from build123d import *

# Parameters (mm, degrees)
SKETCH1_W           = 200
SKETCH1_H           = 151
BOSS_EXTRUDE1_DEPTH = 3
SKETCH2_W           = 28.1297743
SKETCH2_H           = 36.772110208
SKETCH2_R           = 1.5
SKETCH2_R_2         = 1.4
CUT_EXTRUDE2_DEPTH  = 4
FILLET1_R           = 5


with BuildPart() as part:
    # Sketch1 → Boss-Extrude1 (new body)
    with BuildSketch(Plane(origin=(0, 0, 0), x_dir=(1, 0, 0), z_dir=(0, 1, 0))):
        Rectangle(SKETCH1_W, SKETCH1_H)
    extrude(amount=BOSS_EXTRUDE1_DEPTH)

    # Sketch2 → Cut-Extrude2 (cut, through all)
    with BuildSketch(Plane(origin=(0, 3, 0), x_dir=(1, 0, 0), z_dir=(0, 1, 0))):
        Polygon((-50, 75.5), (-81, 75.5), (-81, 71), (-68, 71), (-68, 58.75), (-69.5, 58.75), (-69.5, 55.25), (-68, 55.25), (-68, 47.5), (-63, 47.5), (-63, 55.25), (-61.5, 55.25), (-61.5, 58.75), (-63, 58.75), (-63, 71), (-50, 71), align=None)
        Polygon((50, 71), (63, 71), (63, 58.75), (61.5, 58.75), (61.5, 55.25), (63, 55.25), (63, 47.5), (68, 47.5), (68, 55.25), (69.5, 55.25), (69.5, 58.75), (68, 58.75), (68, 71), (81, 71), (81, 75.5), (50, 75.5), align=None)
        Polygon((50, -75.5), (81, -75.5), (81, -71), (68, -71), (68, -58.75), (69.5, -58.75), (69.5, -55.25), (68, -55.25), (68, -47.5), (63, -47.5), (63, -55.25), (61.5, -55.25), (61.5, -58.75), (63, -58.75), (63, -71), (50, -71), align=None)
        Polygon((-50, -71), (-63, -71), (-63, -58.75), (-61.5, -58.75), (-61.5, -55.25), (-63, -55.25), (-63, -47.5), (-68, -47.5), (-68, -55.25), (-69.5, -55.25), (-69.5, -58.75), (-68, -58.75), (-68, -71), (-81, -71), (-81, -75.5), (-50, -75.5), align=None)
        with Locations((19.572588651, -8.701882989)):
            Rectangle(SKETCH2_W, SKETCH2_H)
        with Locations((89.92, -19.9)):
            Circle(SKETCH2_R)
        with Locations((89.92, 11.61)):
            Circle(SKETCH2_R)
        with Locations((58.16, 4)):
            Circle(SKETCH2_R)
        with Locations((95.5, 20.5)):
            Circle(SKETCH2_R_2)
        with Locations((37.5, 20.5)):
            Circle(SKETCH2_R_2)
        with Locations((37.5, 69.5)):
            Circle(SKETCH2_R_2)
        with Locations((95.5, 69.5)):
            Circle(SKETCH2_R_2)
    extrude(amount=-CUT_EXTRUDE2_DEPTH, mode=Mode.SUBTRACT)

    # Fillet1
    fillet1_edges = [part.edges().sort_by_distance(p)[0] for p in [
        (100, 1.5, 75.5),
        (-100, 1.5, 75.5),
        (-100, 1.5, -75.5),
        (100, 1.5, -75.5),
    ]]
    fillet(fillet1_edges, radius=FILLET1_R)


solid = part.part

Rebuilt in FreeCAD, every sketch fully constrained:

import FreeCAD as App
import Part
import Sketcher

V = App.Vector


def edges_at(feature, points):
    """Names of the edges that pass closest to the given points."""
    edges = feature.Shape.Edges
    near = lambda p: min(range(len(edges)), key=lambda i: edges[i].distToShape(Part.Vertex(*p))[0])
    return sorted({f"Edge{near(p) + 1}" for p in points})


def add_polygon(sketch, points):
    """Adds a closed chain of lines whose ends are joined by coincident constraints."""
    first, n = sketch.GeometryCount, len(points)
    for a, b in zip(points, points[1:] + points[:1]):
        sketch.addGeometry(Part.LineSegment(App.Vector(*a, 0), App.Vector(*b, 0)), False)
    for i in range(n):
        sketch.addConstraint(Sketcher.Constraint("Coincident", first + i, 2, first + (i + 1) % n, 1))

doc = App.newDocument("Part")
body = doc.addObject("PartDesign::Body", "Body")

# Sketch on XZ plane
sketch1 = body.newObject("Sketcher::SketchObject", "Sketch")
sketch1.AttachmentSupport = (doc.getObject("XZ_Plane"), [""])
sketch1.MapMode = "FlatFace"
add_polygon(sketch1, [(-100, -76), (-100, 76), (100, 76), (100, -76)])  # lines 0-3
sketch1.addConstraint([
    Sketcher.Constraint("Vertical", 0),
    Sketcher.Constraint("Horizontal", 1),
    Sketcher.Constraint("Vertical", 2),
    Sketcher.Constraint("Horizontal", 3),
    Sketcher.Constraint("Symmetric", 0, 2, 2, 2, -1, 1),
    Sketcher.Constraint("DistanceX", 1, 1, 1, 2, 200.0),
    Sketcher.Constraint("DistanceY", 0, 1, 0, 2, 151.0),
])
pad1 = body.newObject("PartDesign::Pad", "Pad")
pad1.Profile = sketch1
pad1.Length = 3
pad1.Reversed = True

# Sketch on XZ plane
sketch2 = body.newObject("Sketcher::SketchObject", "Sketch001")
sketch2.AttachmentSupport = (doc.getObject("XZ_Plane"), [""])
sketch2.MapMode = "FlatFace"
sketch2.AttachmentOffset = App.Placement(V(0, 0, -3), App.Rotation())
add_polygon(sketch2, [(-50, -75.5), (-81, -75.5), (-81, -71), (-68, -71), (-68, -58.8), (-69.5, -58.8), (-69.5, -55.2), (-68, -55.2), (-68, -47.5), (-63, -47.5), (-63, -55.2), (-61.5, -55.2), (-61.5, -58.8), (-63, -58.8), (-63, -71), (-50, -71)])  # lines 0-15
add_polygon(sketch2, [(50, -71), (63, -71), (63, -58.8), (61.5, -58.8), (61.5, -55.2), (63, -55.2), (63, -47.5), (68, -47.5), (68, -55.2), (69.5, -55.2), (69.5, -58.8), (68, -58.8), (68, -71), (81, -71), (81, -75.5), (50, -75.5)])  # lines 16-31
add_polygon(sketch2, [(50, 75.5), (81, 75.5), (81, 71), (68, 71), (68, 58.8), (69.5, 58.8), (69.5, 55.2), (68, 55.2), (68, 47.5), (63, 47.5), (63, 55.2), (61.5, 55.2), (61.5, 58.8), (63, 58.8), (63, 71), (50, 71)])  # lines 32-47
add_polygon(sketch2, [(-50, 71), (-63, 71), (-63, 58.8), (-61.5, 58.8), (-61.5, 55.2), (-63, 55.2), (-63, 47.5), (-68, 47.5), (-68, 55.2), (-69.5, 55.2), (-69.5, 58.8), (-68, 58.8), (-68, 71), (-81, 71), (-81, 75.5), (-50, 75.5)])  # lines 48-63
add_polygon(sketch2, [(5.5, -9.7), (5.5, 27.1), (33.6, 27.1), (33.6, -9.7)])  # lines 64-67
sketch2.addGeometry(Part.Circle(V(89.9, 19.9, 0), V(0, 0, 1), 1.5), False)  # 68
sketch2.addGeometry(Part.Circle(V(89.9, -11.6, 0), V(0, 0, 1), 1.5), False)  # 69
sketch2.addGeometry(Part.Circle(V(58.2, -4, 0), V(0, 0, 1), 1.5), False)  # 70
sketch2.addGeometry(Part.Circle(V(95.5, -20.5, 0), V(0, 0, 1), 1.4), False)  # 71
sketch2.addGeometry(Part.Circle(V(37.5, -20.5, 0), V(0, 0, 1), 1.4), False)  # 72
sketch2.addGeometry(Part.Circle(V(37.5, -69.5, 0), V(0, 0, 1), 1.4), False)  # 73
sketch2.addGeometry(Part.Circle(V(95.5, -69.5, 0), V(0, 0, 1), 1.4), False)  # 74
sketch2.addConstraint([
    Sketcher.Constraint("Horizontal", 0),
    Sketcher.Constraint("Vertical", 1),
    Sketcher.Constraint("Horizontal", 2),
    Sketcher.Constraint("Vertical", 3),
    Sketcher.Constraint("Horizontal", 4),
    Sketcher.Constraint("Vertical", 5),
    Sketcher.Constraint("Horizontal", 6),
    Sketcher.Constraint("Vertical", 7),
    Sketcher.Constraint("Horizontal", 8),
    Sketcher.Constraint("Vertical", 9),
    Sketcher.Constraint("Horizontal", 10),
    Sketcher.Constraint("Vertical", 11),
    Sketcher.Constraint("Horizontal", 12),
    Sketcher.Constraint("Vertical", 13),
    Sketcher.Constraint("Horizontal", 14),
    Sketcher.Constraint("Vertical", 15),
    Sketcher.Constraint("Horizontal", 16),
    Sketcher.Constraint("Vertical", 17),
    Sketcher.Constraint("Horizontal", 18),
    Sketcher.Constraint("Vertical", 19),
    Sketcher.Constraint("Horizontal", 20),
    Sketcher.Constraint("Vertical", 21),
    Sketcher.Constraint("Horizontal", 22),
    Sketcher.Constraint("Vertical", 23),
    Sketcher.Constraint("Horizontal", 24),
    Sketcher.Constraint("Vertical", 25),
    Sketcher.Constraint("Horizontal", 26),
    Sketcher.Constraint("Vertical", 27),
    Sketcher.Constraint("Horizontal", 28),
    Sketcher.Constraint("Vertical", 29),
    Sketcher.Constraint("Horizontal", 30),
    Sketcher.Constraint("Vertical", 31),
    Sketcher.Constraint("Horizontal", 32),
    Sketcher.Constraint("Vertical", 33),
    Sketcher.Constraint("Horizontal", 34),
    Sketcher.Constraint("Vertical", 35),
    Sketcher.Constraint("Horizontal", 36),
    Sketcher.Constraint("Vertical", 37),
    Sketcher.Constraint("Horizontal", 38),
    Sketcher.Constraint("Vertical", 39),
    Sketcher.Constraint("Horizontal", 40),
    Sketcher.Constraint("Vertical", 41),
    Sketcher.Constraint("Horizontal", 42),
    Sketcher.Constraint("Vertical", 43),
    Sketcher.Constraint("Horizontal", 44),
    Sketcher.Constraint("Vertical", 45),
    Sketcher.Constraint("Horizontal", 46),
    Sketcher.Constraint("Vertical", 47),
    Sketcher.Constraint("Horizontal", 48),
    Sketcher.Constraint("Vertical", 49),
    Sketcher.Constraint("Horizontal", 50),
    Sketcher.Constraint("Vertical", 51),
    Sketcher.Constraint("Horizontal", 52),
    Sketcher.Constraint("Vertical", 53),
    Sketcher.Constraint("Horizontal", 54),
    Sketcher.Constraint("Vertical", 55),
    Sketcher.Constraint("Horizontal", 56),
    Sketcher.Constraint("Vertical", 57),
    Sketcher.Constraint("Horizontal", 58),
    Sketcher.Constraint("Vertical", 59),
    Sketcher.Constraint("Horizontal", 60),
    Sketcher.Constraint("Vertical", 61),
    Sketcher.Constraint("Horizontal", 62),
    Sketcher.Constraint("Vertical", 63),
    Sketcher.Constraint("Vertical", 64),
    Sketcher.Constraint("Horizontal", 65),
    Sketcher.Constraint("Vertical", 66),
    Sketcher.Constraint("Horizontal", 67),
    Sketcher.Constraint("Equal", 68, 69),
    Sketcher.Constraint("Equal", 69, 70),
    Sketcher.Constraint("Equal", 71, 72),
    Sketcher.Constraint("Equal", 72, 73),
    Sketcher.Constraint("Equal", 73, 74),
    Sketcher.Constraint("Symmetric", 0, 2, 32, 2, -1, 1),
    Sketcher.Constraint("Symmetric", 2, 2, 34, 2, -1, 1),
    Sketcher.Constraint("Symmetric", 4, 2, 36, 2, -1, 1),
    Sketcher.Constraint("Symmetric", 6, 2, 38, 2, -1, 1),
    Sketcher.Constraint("Symmetric", 8, 2, 40, 2, -1, 1),
    Sketcher.Constraint("Symmetric", 10, 2, 42, 2, -1, 1),
    Sketcher.Constraint("Symmetric", 12, 2, 44, 2, -1, 1),
    Sketcher.Constraint("Symmetric", 14, 2, 46, 2, -1, 1),
    Sketcher.Constraint("Symmetric", 16, 2, 48, 2, -1, 1),
    Sketcher.Constraint("Symmetric", 18, 2, 50, 2, -1, 1),
    Sketcher.Constraint("Symmetric", 20, 2, 52, 2, -1, 1),
    Sketcher.Constraint("Symmetric", 22, 2, 54, 2, -1, 1),
    Sketcher.Constraint("Symmetric", 24, 2, 56, 2, -1, 1),
    Sketcher.Constraint("Symmetric", 26, 2, 58, 2, -1, 1),
    Sketcher.Constraint("Symmetric", 28, 2, 60, 2, -1, 1),
    Sketcher.Constraint("Symmetric", 30, 2, 62, 2, -1, 1),
    Sketcher.Constraint("Symmetric", 13, 2, 16, 2, -2),
    Sketcher.Constraint("Symmetric", 11, 2, 18, 2, -2),
    Sketcher.Constraint("Symmetric", 9, 2, 20, 2, -2),
    Sketcher.Constraint("Symmetric", 7, 2, 22, 2, -2),
    Sketcher.Constraint("Symmetric", 5, 2, 24, 2, -2),
    Sketcher.Constraint("Symmetric", 3, 2, 26, 2, -2),
    Sketcher.Constraint("Symmetric", 1, 2, 28, 2, -2),
    Sketcher.Constraint("Symmetric", 15, 2, 30, 2, -2),
    Sketcher.Constraint("Horizontal", 71, 3, 72, 3),
    Sketcher.Constraint("Horizontal", 73, 3, 74, 3),
    Sketcher.Constraint("Horizontal", 6, 2, 9, 2),
    Sketcher.Constraint("Horizontal", 4, 2, 11, 2),
    Sketcher.Constraint("Horizontal", 2, 2, 13, 2),
    Sketcher.Constraint("Vertical", 68, 3, 69, 3),
    Sketcher.Constraint("Vertical", 72, 3, 73, 3),
    Sketcher.Constraint("Vertical", 71, 3, 74, 3),
    Sketcher.Constraint("Vertical", 3, 2, 6, 2),
    Sketcher.Constraint("Vertical", 9, 2, 12, 2),
    Sketcher.Constraint("Equal", 6, 10),
    Sketcher.Constraint("Equal", 2, 14),
    Sketcher.Constraint("Diameter", 68, 3.0),
    Sketcher.Constraint("Diameter", 71, 2.8),
    Sketcher.Constraint("DistanceX", 0, 2, 0, 1, 31.0),
    Sketcher.Constraint("DistanceX", 2, 1, 2, 2, 13.0),
    Sketcher.Constraint("DistanceX", 4, 2, 4, 1, 1.5),
    Sketcher.Constraint("DistanceY", 1, 1, 1, 2, 4.5),
    Sketcher.Constraint("DistanceY", 5, 1, 5, 2, 3.5),
    Sketcher.Constraint("DistanceY", 70, 3, -1, 1, 4.0),
    Sketcher.Constraint("DistanceX", 0, 2, -1, 1, 81.0),
    Sketcher.Constraint("DistanceY", 1, 2, -1, 1, 71.0),
    Sketcher.Constraint("DistanceY", 3, 1, 3, 2, 12.25),
    Sketcher.Constraint("DistanceY", 7, 1, 7, 2, 7.75),
    Sketcher.Constraint("DistanceY", -1, 1, 68, 3, 19.9),
    Sketcher.Constraint("DistanceX", -1, 1, 71, 3, 95.5),
    Sketcher.Constraint("DistanceY", 71, 3, -1, 1, 20.5),
    Sketcher.Constraint("DistanceX", -1, 1, 72, 3, 37.5),
    Sketcher.Constraint("DistanceY", 73, 3, -1, 1, 69.5),
    Sketcher.Constraint("DistanceX", -1, 1, 68, 3, 89.92),
    Sketcher.Constraint("DistanceY", 69, 3, -1, 1, 11.61),
    Sketcher.Constraint("DistanceX", -1, 1, 70, 3, 58.16),
    Sketcher.Constraint("DistanceY", 64, 1, 64, 2, 36.77211),
    Sketcher.Constraint("DistanceX", -1, 1, 64, 2, 5.507702),
    Sketcher.Constraint("DistanceX", 65, 1, 65, 2, 28.129774),
    Sketcher.Constraint("DistanceY", -1, 1, 64, 2, 27.087938),
])
pocket1 = body.newObject("PartDesign::Pocket", "Pocket")
pocket1.Profile = sketch2
pocket1.Type = "ThroughAll"
pocket1.Reversed = True
doc.recompute()

fillet = body.newObject("PartDesign::Fillet", "Fillet")
fillet.Base = (pocket1, edges_at(pocket1, [
    (100, 1.5, 75.5),
    (-100, 1.5, 75.5),
    (-100, 1.5, -75.5),
    (100, 1.5, -75.5),
]))
fillet.Radius = 5

doc.recompute()
